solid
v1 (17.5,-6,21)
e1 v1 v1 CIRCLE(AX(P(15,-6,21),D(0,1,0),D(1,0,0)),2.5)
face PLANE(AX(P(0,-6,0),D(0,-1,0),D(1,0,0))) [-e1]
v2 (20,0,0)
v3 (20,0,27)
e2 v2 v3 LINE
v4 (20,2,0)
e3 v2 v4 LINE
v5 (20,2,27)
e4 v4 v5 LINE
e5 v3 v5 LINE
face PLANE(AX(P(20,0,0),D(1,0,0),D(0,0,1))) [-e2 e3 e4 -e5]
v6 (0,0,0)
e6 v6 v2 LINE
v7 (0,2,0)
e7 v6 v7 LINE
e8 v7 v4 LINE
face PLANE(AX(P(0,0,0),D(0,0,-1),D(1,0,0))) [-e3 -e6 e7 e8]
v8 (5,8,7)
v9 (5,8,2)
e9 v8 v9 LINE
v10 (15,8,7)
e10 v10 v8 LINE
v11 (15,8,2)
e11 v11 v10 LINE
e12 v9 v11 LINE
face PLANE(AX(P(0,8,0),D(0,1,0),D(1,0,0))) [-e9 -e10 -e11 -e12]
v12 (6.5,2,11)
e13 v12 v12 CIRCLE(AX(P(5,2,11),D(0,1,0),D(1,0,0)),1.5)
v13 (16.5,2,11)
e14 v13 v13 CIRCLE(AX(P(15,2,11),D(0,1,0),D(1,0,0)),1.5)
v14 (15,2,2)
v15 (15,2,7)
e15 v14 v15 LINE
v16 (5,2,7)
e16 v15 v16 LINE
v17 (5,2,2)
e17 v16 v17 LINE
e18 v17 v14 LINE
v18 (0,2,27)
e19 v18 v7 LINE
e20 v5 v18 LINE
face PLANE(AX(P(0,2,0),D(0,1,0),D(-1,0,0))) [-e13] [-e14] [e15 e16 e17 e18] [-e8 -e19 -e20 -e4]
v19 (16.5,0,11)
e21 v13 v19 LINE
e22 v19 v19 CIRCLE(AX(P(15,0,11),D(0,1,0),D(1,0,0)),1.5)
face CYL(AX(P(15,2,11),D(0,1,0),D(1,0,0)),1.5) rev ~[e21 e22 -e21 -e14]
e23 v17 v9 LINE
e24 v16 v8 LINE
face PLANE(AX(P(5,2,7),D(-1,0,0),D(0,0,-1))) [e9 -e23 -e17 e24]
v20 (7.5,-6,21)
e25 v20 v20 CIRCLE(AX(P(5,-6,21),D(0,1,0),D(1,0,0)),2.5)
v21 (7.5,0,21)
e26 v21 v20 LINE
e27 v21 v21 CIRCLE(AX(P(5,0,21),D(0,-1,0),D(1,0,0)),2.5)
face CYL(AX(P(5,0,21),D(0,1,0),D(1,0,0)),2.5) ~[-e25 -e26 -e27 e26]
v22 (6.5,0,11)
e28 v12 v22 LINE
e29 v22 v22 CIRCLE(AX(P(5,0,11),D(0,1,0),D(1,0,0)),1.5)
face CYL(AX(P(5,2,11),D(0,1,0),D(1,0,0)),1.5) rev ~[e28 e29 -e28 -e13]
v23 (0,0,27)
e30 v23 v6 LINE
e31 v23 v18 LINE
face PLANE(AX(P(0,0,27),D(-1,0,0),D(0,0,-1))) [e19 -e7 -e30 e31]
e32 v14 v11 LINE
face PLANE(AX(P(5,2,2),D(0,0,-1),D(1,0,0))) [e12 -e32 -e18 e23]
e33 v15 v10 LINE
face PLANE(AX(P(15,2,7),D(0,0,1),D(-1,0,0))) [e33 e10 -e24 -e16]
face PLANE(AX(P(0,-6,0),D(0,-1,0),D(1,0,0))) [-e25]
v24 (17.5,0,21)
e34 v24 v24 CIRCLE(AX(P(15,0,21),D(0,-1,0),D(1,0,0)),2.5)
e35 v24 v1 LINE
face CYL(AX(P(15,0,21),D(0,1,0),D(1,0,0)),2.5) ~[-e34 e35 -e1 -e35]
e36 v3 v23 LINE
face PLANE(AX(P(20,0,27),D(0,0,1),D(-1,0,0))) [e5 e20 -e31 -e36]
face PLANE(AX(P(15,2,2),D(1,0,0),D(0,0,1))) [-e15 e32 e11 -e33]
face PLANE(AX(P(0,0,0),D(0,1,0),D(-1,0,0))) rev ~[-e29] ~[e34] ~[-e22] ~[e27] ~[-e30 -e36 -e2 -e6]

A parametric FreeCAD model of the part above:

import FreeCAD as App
import Part
import Sketcher
from FreeCAD import Vector
Q = App.Units.Quantity


def add_polygon(sketch, points):
    """Adds a closed chain of lines whose ends are joined by coincident constraints."""
    first, n = sketch.GeometryCount, len(points)
    for a, b in zip(points, points[1:] + points[:1]):
        sketch.addGeometry(Part.LineSegment(App.Vector(*a, 0), App.Vector(*b, 0)), False)
    for i in range(n):
        sketch.addConstraint(Sketcher.Constraint("Coincident", first + i, 2, first + (i + 1) % n, 1))

doc = App.newDocument("Part")
body = doc.addObject("PartDesign::Body", "Body")

sketch1 = doc.addObject("Sketcher::SketchObject", "Sketch")
body.addObject(sketch1)
sketch1.AttachmentSupport = (doc.XZ_Plane, [""])
sketch1.MapMode = "FlatFace"
add_polygon(sketch1, [(20, 0), (0, 0), (0, 27), (20, 27)])
sketch1.addConstraint([
    Sketcher.Constraint("Horizontal", 0),
    Sketcher.Constraint("Vertical", 1),
    Sketcher.Constraint("Horizontal", 2),
    Sketcher.Constraint("Vertical", 3),
    Sketcher.Constraint("Coincident", 0, 2, -1, 1),
    Sketcher.Constraint("DistanceX", 0, 2, 0, 1, Q("20 mm")),
    Sketcher.Constraint("DistanceY", 1, 1, 1, 2, Q("27 mm")),
])
pad1 = doc.addObject("PartDesign::Pad", "Pad")
body.addObject(pad1)
pad1.Profile = sketch1
pad1.Length = 2
pad1.Reversed = True

sketch2 = doc.addObject("Sketcher::SketchObject", "Sketch001")
body.addObject(sketch2)
sketch2.AttachmentSupport = (doc.XZ_Plane, [""])
sketch2.MapMode = "FlatFace"
sketch2.AttachmentOffset = App.Placement(Vector(0, 0, -2), App.Rotation())
sketch2.addGeometry([
    Part.Circle(Vector(5, 11, 0), Vector(0, 0, 1), 1.5),
    Part.Circle(Vector(15, 11, 0), Vector(0, 0, 1), 1.5),
], False)
sketch2.addConstraint([
    Sketcher.Constraint("Equal", 0, 1),
    Sketcher.Constraint("Horizontal", 0, 3, 1, 3),
    Sketcher.Constraint("Diameter", 0, Q("3 mm")),
    Sketcher.Constraint("DistanceX", -1, 1, 0, 3, Q("5 mm")),
    Sketcher.Constraint("DistanceY", -1, 1, 0, 3, Q("11 mm")),
    Sketcher.Constraint("DistanceX", -1, 1, 1, 3, Q("15 mm")),
])
pocket1 = doc.addObject("PartDesign::Pocket", "Pocket")
body.addObject(pocket1)
pocket1.Profile = sketch2
pocket1.Length = 2
pocket1.Reversed = True

sketch3 = doc.addObject("Sketcher::SketchObject", "Sketch002")
body.addObject(sketch3)
sketch3.AttachmentSupport = (doc.XZ_Plane, [""])
sketch3.MapMode = "FlatFace"
sketch3.addGeometry([
    Part.Circle(Vector(5, 21, 0), Vector(0, 0, 1), 2.5),
    Part.Circle(Vector(15, 21, 0), Vector(0, 0, 1), 2.5),
], False)
sketch3.addConstraint([
    Sketcher.Constraint("Equal", 0, 1),
    Sketcher.Constraint("Horizontal", 0, 3, 1, 3),
    Sketcher.Constraint("Diameter", 0, Q("5 mm")),
    Sketcher.Constraint("DistanceX", -1, 1, 0, 3, Q("5 mm")),
    Sketcher.Constraint("DistanceX", 0, 3, 1, 3, Q("10 mm")),
    Sketcher.Constraint("DistanceY", -1, 1, 0, 3, Q("21 mm")),
])
pad2 = doc.addObject("PartDesign::Pad", "Pad001")
body.addObject(pad2)
pad2.Profile = sketch3
pad2.Length = 6

sketch4 = doc.addObject("Sketcher::SketchObject", "Sketch003")
body.addObject(sketch4)
sketch4.AttachmentSupport = (doc.XZ_Plane, [""])
sketch4.MapMode = "FlatFace"
sketch4.AttachmentOffset = App.Placement(Vector(0, 0, -2), App.Rotation())
add_polygon(sketch4, [(15, 2), (5, 2), (5, 7), (15, 7)])
sketch4.addConstraint([
    Sketcher.Constraint("Horizontal", 0),
    Sketcher.Constraint("Vertical", 1),
    Sketcher.Constraint("Horizontal", 2),
    Sketcher.Constraint("Vertical", 3),
    Sketcher.Constraint("DistanceY", -1, 1, 0, 2, Q("2 mm")),
    Sketcher.Constraint("DistanceX", 0, 2, 0, 1, Q("10 mm")),
    Sketcher.Constraint("DistanceY", 1, 1, 1, 2, Q("5 mm")),
    Sketcher.Constraint("DistanceX", -1, 1, 0, 2, Q("5 mm")),
])
pad3 = doc.addObject("PartDesign::Pad", "Pad002")
body.addObject(pad3)
pad3.Profile = sketch4
pad3.Length = 6
pad3.Reversed = True

doc.recompute()
